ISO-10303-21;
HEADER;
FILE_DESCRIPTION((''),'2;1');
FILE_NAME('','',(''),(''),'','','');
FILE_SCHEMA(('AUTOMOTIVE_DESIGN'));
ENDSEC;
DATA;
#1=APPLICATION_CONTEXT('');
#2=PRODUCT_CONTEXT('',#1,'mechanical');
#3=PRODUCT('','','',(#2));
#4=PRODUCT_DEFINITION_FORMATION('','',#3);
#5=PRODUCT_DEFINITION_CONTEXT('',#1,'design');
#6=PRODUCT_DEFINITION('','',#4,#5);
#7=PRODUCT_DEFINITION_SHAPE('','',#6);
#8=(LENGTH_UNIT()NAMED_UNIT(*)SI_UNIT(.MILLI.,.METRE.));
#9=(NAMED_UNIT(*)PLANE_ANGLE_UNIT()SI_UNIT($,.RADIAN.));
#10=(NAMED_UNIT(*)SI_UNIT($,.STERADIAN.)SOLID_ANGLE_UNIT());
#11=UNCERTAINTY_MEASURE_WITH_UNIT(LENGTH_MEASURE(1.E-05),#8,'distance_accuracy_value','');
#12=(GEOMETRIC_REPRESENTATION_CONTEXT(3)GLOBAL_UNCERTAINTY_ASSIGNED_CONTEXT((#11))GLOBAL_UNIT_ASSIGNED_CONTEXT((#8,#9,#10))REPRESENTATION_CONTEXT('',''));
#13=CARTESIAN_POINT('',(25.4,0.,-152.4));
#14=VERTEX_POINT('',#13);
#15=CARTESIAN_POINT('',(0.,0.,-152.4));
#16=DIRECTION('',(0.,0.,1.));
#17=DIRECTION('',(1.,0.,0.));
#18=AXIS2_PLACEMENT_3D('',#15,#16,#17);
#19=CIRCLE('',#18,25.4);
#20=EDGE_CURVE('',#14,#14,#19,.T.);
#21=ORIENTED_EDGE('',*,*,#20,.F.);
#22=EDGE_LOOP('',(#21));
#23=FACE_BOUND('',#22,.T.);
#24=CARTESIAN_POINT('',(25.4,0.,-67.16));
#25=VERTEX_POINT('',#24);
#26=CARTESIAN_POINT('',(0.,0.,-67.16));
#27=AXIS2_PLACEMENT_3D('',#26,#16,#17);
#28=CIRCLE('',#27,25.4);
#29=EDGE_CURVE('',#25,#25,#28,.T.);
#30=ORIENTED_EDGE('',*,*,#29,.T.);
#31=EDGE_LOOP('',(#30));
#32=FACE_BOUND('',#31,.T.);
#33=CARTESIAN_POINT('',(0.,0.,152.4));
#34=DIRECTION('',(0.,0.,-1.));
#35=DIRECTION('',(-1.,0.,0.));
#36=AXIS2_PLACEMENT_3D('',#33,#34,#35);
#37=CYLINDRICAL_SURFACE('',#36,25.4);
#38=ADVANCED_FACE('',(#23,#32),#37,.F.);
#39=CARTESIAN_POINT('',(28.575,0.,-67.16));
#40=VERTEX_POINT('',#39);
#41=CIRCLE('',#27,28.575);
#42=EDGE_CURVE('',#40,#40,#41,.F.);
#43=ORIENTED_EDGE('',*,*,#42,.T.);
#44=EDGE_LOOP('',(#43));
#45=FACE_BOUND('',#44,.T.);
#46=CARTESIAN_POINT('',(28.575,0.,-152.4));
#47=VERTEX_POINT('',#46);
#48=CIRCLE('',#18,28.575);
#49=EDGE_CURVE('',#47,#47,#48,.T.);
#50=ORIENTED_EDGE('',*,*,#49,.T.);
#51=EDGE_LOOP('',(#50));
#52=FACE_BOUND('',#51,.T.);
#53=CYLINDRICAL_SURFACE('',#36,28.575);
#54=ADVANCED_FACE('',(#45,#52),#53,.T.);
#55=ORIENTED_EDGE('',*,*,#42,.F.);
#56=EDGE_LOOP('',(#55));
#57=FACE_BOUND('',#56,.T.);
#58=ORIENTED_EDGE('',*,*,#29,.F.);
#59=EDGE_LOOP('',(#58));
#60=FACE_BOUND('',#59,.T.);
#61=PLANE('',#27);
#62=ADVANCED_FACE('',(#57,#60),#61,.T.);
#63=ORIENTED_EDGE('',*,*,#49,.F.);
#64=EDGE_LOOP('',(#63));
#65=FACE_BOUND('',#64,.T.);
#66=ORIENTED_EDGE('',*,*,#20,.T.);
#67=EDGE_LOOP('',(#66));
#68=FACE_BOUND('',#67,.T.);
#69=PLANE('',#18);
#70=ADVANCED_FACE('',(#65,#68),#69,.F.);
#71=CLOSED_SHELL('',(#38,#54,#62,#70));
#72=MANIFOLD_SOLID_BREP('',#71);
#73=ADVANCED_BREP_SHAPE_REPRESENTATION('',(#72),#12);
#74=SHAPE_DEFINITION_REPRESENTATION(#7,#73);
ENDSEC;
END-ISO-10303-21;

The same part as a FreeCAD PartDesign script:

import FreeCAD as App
import Part
import Sketcher

V = App.Vector
Q = App.Units.Quantity

doc = App.newDocument("Part")
body = doc.addObject("PartDesign::Body", "Body")

# Sketch on XY plane
sketch1 = body.newObject("Sketcher::SketchObject", "Sketch")
sketch1.AttachmentSupport = (doc.getObject("XY_Plane"), [""])
sketch1.MapMode = "FlatFace"
sketch1.addGeometry(Part.Circle(V(0, 0, 0), V(0, 0, 1), 29), False)
sketch1.addGeometry(Part.Circle(V(0, 0, 0), V(0, 0, 1), 25), False)
sketch1.addConstraint(Sketcher.Constraint("Coincident", 0, 3, -1, 1))
sketch1.addConstraint(Sketcher.Constraint("Coincident", 1, 3, -1, 1))
sketch1.addConstraint(Sketcher.Constraint("Diameter", 1, Q("2 in")))
sketch1.addConstraint(Sketcher.Constraint("Diameter", 0, Q("2.25 in")))
pad1 = body.newObject("PartDesign::Pad", "Pad")
pad1.Profile = sketch1
pad1.Type = "TwoLengths"
pad1.Length = Q("6 in")
pad1.Length2 = Q("6 in")

# Sketch on XY plane
sketch2 = body.newObject("Sketcher::SketchObject", "Sketch001")
sketch2.AttachmentSupport = (doc.getObject("XY_Plane"), [""])
sketch2.MapMode = "FlatFace"
sketch2.AttachmentOffset = App.Placement(V(0, 0, 6 * 25.4), App.Rotation())
sketch2.addGeometry(Part.Circle(V(0, 0, 0), V(0, 0, 1), 29), False)
sketch2.addConstraint(Sketcher.Constraint("Coincident", 0, 3, -1, 1))
sketch2.addConstraint(Sketcher.Constraint("Diameter", 0, Q("2.25 in")))
pocket1 = body.newObject("PartDesign::Pocket", "Pocket")
pocket1.Profile = sketch2
pocket1.Length = 219.56

doc.recompute()
